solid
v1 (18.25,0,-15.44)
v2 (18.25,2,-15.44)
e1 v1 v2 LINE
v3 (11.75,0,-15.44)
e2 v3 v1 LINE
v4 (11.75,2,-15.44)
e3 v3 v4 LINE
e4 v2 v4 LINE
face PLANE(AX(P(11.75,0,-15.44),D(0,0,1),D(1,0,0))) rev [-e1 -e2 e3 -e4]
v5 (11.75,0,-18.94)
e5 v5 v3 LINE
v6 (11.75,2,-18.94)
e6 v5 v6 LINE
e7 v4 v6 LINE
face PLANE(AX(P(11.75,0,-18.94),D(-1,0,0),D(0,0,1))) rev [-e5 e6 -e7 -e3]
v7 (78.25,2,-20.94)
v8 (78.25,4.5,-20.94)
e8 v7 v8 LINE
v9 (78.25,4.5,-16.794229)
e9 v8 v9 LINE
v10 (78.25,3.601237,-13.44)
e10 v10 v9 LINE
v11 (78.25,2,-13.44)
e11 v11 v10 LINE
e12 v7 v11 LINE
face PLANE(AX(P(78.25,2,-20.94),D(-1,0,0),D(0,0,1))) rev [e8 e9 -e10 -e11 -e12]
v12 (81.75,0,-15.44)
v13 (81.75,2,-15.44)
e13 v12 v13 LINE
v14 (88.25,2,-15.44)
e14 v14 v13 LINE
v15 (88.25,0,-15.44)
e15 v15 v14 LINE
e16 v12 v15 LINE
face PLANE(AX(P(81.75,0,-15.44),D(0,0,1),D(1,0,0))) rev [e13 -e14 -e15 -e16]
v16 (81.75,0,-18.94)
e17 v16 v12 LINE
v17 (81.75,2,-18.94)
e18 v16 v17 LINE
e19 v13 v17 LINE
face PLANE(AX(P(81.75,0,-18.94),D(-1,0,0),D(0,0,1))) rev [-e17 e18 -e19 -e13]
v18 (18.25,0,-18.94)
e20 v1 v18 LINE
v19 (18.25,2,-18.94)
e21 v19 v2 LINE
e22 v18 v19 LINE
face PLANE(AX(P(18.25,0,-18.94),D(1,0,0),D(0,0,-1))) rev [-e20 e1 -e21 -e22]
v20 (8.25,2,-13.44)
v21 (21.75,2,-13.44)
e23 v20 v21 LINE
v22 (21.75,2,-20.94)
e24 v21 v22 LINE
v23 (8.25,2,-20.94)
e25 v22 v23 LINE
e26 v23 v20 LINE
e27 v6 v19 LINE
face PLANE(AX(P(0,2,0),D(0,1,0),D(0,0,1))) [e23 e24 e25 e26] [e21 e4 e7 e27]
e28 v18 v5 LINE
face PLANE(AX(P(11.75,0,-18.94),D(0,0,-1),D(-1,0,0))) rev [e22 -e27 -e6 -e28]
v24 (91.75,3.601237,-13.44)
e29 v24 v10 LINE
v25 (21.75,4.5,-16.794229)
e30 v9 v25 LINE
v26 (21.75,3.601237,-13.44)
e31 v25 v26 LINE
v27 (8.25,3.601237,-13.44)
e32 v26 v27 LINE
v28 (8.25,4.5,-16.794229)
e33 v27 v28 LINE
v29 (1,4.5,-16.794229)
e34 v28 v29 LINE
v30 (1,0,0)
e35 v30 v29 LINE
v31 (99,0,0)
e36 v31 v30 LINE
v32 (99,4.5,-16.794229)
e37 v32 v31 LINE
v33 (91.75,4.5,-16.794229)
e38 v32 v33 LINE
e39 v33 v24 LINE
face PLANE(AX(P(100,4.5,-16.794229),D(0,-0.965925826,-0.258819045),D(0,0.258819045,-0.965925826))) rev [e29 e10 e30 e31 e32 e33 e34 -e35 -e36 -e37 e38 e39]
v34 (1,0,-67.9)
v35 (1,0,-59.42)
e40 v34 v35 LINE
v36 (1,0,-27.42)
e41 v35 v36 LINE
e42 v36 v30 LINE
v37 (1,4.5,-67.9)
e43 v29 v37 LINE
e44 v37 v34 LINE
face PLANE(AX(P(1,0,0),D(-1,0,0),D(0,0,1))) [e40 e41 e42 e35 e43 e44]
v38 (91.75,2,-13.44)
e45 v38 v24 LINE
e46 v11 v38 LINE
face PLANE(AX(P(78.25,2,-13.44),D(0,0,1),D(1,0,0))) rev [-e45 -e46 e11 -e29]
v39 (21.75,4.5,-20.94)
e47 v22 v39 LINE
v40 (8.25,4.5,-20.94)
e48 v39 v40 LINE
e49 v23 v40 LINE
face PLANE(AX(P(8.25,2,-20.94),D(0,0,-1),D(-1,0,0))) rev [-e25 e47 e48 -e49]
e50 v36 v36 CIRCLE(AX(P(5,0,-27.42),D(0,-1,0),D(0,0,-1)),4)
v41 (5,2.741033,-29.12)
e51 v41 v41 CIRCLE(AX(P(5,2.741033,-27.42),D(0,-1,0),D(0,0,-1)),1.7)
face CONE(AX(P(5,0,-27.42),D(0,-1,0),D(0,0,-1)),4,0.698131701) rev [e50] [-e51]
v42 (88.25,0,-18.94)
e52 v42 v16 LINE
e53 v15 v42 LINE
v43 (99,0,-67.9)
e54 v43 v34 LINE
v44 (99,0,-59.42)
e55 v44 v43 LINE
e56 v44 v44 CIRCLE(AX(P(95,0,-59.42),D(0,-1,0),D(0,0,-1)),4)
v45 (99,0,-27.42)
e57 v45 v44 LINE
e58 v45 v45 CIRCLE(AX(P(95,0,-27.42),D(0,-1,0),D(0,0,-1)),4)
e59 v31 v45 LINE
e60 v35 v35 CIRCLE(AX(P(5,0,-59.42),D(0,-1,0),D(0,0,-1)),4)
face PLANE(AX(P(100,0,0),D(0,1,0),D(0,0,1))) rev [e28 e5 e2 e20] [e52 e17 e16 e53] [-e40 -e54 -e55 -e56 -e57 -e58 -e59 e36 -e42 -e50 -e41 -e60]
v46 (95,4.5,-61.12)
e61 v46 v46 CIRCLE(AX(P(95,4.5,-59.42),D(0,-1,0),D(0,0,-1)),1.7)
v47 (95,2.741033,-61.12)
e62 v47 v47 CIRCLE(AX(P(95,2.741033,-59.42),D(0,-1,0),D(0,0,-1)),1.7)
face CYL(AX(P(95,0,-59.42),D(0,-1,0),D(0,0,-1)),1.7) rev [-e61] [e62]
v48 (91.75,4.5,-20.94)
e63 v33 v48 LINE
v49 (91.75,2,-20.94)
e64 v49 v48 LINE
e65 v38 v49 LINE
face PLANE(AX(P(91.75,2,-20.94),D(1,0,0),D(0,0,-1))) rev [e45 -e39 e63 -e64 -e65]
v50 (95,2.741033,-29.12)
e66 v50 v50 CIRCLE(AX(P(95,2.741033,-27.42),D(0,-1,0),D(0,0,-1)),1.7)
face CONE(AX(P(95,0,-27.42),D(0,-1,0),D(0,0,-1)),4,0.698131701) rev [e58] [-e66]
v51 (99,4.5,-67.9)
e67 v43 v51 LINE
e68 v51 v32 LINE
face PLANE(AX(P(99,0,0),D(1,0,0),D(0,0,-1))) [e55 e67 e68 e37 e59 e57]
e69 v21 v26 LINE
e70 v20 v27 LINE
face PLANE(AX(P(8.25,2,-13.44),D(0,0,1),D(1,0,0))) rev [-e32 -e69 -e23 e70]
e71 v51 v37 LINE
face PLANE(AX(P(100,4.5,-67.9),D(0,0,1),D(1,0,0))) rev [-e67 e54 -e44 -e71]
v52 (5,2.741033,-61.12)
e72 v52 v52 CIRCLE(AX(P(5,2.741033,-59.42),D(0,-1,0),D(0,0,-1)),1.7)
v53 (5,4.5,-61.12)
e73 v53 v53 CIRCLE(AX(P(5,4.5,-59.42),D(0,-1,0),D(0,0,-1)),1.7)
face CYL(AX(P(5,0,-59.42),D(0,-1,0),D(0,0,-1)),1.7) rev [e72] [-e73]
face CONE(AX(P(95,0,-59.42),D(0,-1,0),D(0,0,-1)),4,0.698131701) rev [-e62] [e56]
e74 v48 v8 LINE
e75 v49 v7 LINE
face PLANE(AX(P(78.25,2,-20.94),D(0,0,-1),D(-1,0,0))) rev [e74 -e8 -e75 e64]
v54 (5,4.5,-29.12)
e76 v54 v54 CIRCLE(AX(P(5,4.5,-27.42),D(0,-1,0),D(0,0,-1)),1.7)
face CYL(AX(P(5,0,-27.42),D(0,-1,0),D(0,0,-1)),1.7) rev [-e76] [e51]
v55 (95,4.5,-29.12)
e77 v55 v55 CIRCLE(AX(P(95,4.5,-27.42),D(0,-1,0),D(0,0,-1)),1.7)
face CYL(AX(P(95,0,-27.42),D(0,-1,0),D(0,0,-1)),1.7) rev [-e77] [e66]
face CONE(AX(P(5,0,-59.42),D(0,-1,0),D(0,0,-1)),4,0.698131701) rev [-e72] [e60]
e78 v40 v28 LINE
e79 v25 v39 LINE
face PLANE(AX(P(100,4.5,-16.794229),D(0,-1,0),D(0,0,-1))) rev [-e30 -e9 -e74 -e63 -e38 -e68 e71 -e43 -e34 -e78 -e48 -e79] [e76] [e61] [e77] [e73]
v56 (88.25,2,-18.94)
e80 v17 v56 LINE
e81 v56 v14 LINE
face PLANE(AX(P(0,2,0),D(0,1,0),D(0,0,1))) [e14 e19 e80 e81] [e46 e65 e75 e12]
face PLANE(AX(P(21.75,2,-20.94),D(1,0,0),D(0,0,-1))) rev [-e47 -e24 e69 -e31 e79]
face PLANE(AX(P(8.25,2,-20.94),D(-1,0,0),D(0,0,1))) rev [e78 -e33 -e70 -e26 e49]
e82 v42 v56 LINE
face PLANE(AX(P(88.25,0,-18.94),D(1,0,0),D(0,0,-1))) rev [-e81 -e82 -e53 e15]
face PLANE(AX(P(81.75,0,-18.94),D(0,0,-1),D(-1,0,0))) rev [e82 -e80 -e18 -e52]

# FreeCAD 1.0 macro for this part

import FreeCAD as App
import Part
import Sketcher
from FreeCAD import Vector
Q = App.Units.Quantity


def add_polygon(sketch, points):
    """Adds a closed chain of lines whose ends are joined by coincident constraints."""
    first, n = sketch.GeometryCount, len(points)
    for a, b in zip(points, points[1:] + points[:1]):
        sketch.addGeometry(Part.LineSegment(App.Vector(*a, 0), App.Vector(*b, 0)), False)
    for i in range(n):
        sketch.addConstraint(Sketcher.Constraint("Coincident", first + i, 2, first + (i + 1) % n, 1))

doc = App.newDocument("Part")
body = doc.addObject("PartDesign::Body", "Body")

# Sketch on YZ plane
sketch1 = doc.addObject("Sketcher::SketchObject", "Sketch")
body.addObject(sketch1)
sketch1.AttachmentSupport = (doc.YZ_Plane, [""])
sketch1.MapMode = "FlatFace"
add_polygon(sketch1, [(0, 0), (0, -67.9), (4.5, -67.9), (4.5, -16.8)])  # lines 0-3
sketch1.addConstraint(Sketcher.Constraint("Vertical", 0))
sketch1.addConstraint(Sketcher.Constraint("Horizontal", 1))
sketch1.addConstraint(Sketcher.Constraint("Vertical", 2))
sketch1.addConstraint(Sketcher.Constraint("Coincident", 3, 2, -1, 1))
sketch1.addConstraint(Sketcher.Constraint("Angle", 3, Q("105 deg")))
sketch1.addConstraint(Sketcher.Constraint("DistanceX", 1, 1, 1, 2, Q("4.5 mm")))
sketch1.addConstraint(Sketcher.Constraint("DistanceY", 0, 2, 0, 1, Q("67.9 mm")))
pad1 = doc.addObject("PartDesign::Pad", "Pad")
body.addObject(pad1)
pad1.Profile = sketch1
pad1.Length = 100

# Sketch on YZ plane
sketch2 = doc.addObject("Sketcher::SketchObject", "Sketch001")
body.addObject(sketch2)
sketch2.AttachmentSupport = (doc.YZ_Plane, [""])
sketch2.MapMode = "FlatFace"
sketch2.AttachmentOffset = App.Placement(Vector(0, 0, 95), App.Rotation())
add_polygon(sketch2, [(4.5, -59.4), (0, -59.4), (0, -63.4), (2.7, -61.1), (4.5, -61.1)])  # lines 0-4
sketch2.addGeometry(Part.LineSegment(Vector(0, -59.4, 0), Vector(4.5, -59.4, 0)), True)  # axis
sketch2.addConstraint(Sketcher.Constraint("Horizontal", 0))
sketch2.addConstraint(Sketcher.Constraint("Vertical", 1))
sketch2.addConstraint(Sketcher.Constraint("Horizontal", 3))
sketch2.addConstraint(Sketcher.Constraint("Vertical", 4))
sketch2.addConstraint(Sketcher.Constraint("Horizontal", 5))
sketch2.addConstraint(Sketcher.Constraint("Coincident", 5, 1, 0, 2))
sketch2.addConstraint(Sketcher.Constraint("PointOnObject", 0, 2, -2))
sketch2.addConstraint(Sketcher.Constraint("Vertical", 3, 2, 5, 2))
sketch2.addConstraint(Sketcher.Constraint("DistanceY", 1, 2, 1, 1, Q("4 mm")))
sketch2.addConstraint(Sketcher.Constraint("Angle", 2, Q("40 deg")))
sketch2.addConstraint(Sketcher.Constraint("DistanceX", 0, 2, 0, 1, Q("4.5 mm")))
sketch2.addConstraint(Sketcher.Constraint("DistanceY", 4, 1, 4, 2, Q("1.7 mm")))
sketch2.addConstraint(Sketcher.Constraint("DistanceY", 0, 2, -1, 1, Q("59.42 mm")))
groove = doc.addObject("PartDesign::Groove", "Groove")
body.addObject(groove)
groove.Profile = sketch2
groove.ReferenceAxis = (sketch2, ["Axis0"])
groove.Angle = 360
doc.recompute()

linearpattern = doc.addObject("PartDesign::LinearPattern", "LinearPattern")
body.addObject(linearpattern)
linearpattern.Originals = [groove]
linearpattern.Direction = (doc.X_Axis, [""])
linearpattern.Mode = "offset"
linearpattern.Offset = 90
linearpattern.Occurrences = 2
linearpattern.Reversed = True
body.Tip = linearpattern
doc.recompute()

datumline = doc.addObject("PartDesign::Line", "DatumLine")
body.addObject(datumline)
datumline.Placement = App.Placement(Vector(0, 0, 0), App.Rotation(Vector(0, 0, 1), Vector(-0.94221469, 0, 0.335009668)))
linearpattern2 = doc.addObject("PartDesign::LinearPattern", "LinearPattern001")
body.addObject(linearpattern2)
linearpattern2.Originals = [groove]
linearpattern2.Direction = (datumline, [""])
linearpattern2.Mode = "offset"
linearpattern2.Offset = 95.519631
linearpattern2.Occurrences = 2
body.Tip = linearpattern2
doc.recompute()

linearpattern3 = doc.addObject("PartDesign::LinearPattern", "LinearPattern002")
body.addObject(linearpattern3)
linearpattern3.Originals = [groove]
linearpattern3.Direction = (doc.Z_Axis, [""])
linearpattern3.Mode = "offset"
linearpattern3.Offset = 32
linearpattern3.Occurrences = 2
body.Tip = linearpattern3

# Sketch on XZ plane
sketch3 = doc.addObject("Sketcher::SketchObject", "Sketch002")
body.addObject(sketch3)
sketch3.AttachmentSupport = (doc.XZ_Plane, [""])
sketch3.MapMode = "FlatFace"
sketch3.AttachmentOffset = App.Placement(Vector(0, 0, -4.5), App.Rotation())
add_polygon(sketch3, [(11.8, -18.9), (11.8, -15.4), (18.2, -15.4), (18.2, -18.9)])  # lines 0-3
add_polygon(sketch3, [(81.8, -18.9), (81.8, -15.4), (88.2, -15.4), (88.2, -18.9)])  # lines 4-7
sketch3.addConstraint(Sketcher.Constraint("Vertical", 0))
sketch3.addConstraint(Sketcher.Constraint("Horizontal", 1))
sketch3.addConstraint(Sketcher.Constraint("Vertical", 2))
sketch3.addConstraint(Sketcher.Constraint("Horizontal", 3))
sketch3.addConstraint(Sketcher.Constraint("Vertical", 4))
sketch3.addConstraint(Sketcher.Constraint("Horizontal", 5))
sketch3.addConstraint(Sketcher.Constraint("Vertical", 6))
sketch3.addConstraint(Sketcher.Constraint("Horizontal", 7))
sketch3.addConstraint(Sketcher.Constraint("Horizontal", 1, 2, 4, 2))
sketch3.addConstraint(Sketcher.Constraint("Horizontal", 3, 2, 6, 2))
sketch3.addConstraint(Sketcher.Constraint("Equal", 3, 5))
sketch3.addConstraint(Sketcher.Constraint("DistanceX", 1, 1, 1, 2, Q("6.5 mm")))
sketch3.addConstraint(Sketcher.Constraint("DistanceY", 0, 1, 0, 2, Q("3.5 mm")))
sketch3.addConstraint(Sketcher.Constraint("DistanceX", 0, 2, 4, 2, Q("70 mm")))
sketch3.addConstraint(Sketcher.Constraint("DistanceX", -1, 1, 0, 2, Q("11.75 mm")))
sketch3.addConstraint(Sketcher.Constraint("DistanceY", 0, 2, -1, 1, Q("15.44 mm")))
pocket1 = doc.addObject("PartDesign::Pocket", "Pocket")
body.addObject(pocket1)
pocket1.Profile = sketch3
pocket1.Type = "ThroughAll"
pocket1.Reversed = True

# Sketch on XZ plane
sketch4 = doc.addObject("Sketcher::SketchObject", "Sketch003")
body.addObject(sketch4)
sketch4.AttachmentSupport = (doc.XZ_Plane, [""])
sketch4.MapMode = "FlatFace"
sketch4.AttachmentOffset = App.Placement(Vector(0, 0, -4.5), App.Rotation())
add_polygon(sketch4, [(8, -21), (8, -13), (22, -13), (22, -21)])  # lines 0-3
add_polygon(sketch4, [(78, -21), (78, -13), (92, -13), (92, -21)])  # lines 4-7
sketch4.addConstraint(Sketcher.Constraint("Vertical", 0))
sketch4.addConstraint(Sketcher.Constraint("Horizontal", 1))
sketch4.addConstraint(Sketcher.Constraint("Vertical", 2))
sketch4.addConstraint(Sketcher.Constraint("Horizontal", 3))
sketch4.addConstraint(Sketcher.Constraint("Vertical", 4))
sketch4.addConstraint(Sketcher.Constraint("Horizontal", 5))
sketch4.addConstraint(Sketcher.Constraint("Vertical", 6))
sketch4.addConstraint(Sketcher.Constraint("Horizontal", 7))
sketch4.addConstraint(Sketcher.Constraint("Horizontal", 1, 2, 4, 2))
sketch4.addConstraint(Sketcher.Constraint("Horizontal", 3, 2, 6, 2))
sketch4.addConstraint(Sketcher.Constraint("Equal", 3, 5))
sketch4.addConstraint(Sketcher.Constraint("DistanceX", 1, 1, 1, 2, Q("13.5 mm")))
sketch4.addConstraint(Sketcher.Constraint("DistanceY", 0, 1, 0, 2, Q("7.5 mm")))
sketch4.addConstraint(Sketcher.Constraint("DistanceX", 0, 2, 4, 2, Q("70 mm")))
sketch4.addConstraint(Sketcher.Constraint("DistanceX", -1, 1, 0, 2, Q("8.25 mm")))
sketch4.addConstraint(Sketcher.Constraint("DistanceY", 0, 2, -1, 1, Q("13.44 mm")))
pocket2 = doc.addObject("PartDesign::Pocket", "Pocket001")
body.addObject(pocket2)
pocket2.Profile = sketch4
pocket2.Length = 2.5
pocket2.Reversed = True

# Sketch on YZ plane
sketch5 = doc.addObject("Sketcher::SketchObject", "Sketch004")
body.addObject(sketch5)
sketch5.AttachmentSupport = (doc.YZ_Plane, [""])
sketch5.MapMode = "FlatFace"
sketch5.AttachmentOffset = App.Placement(Vector(0, 0, 100), App.Rotation())
add_polygon(sketch5, [(0, 0), (0, -68), (7, -68), (7, 0)])  # lines 0-3
sketch5.addConstraint(Sketcher.Constraint("Vertical", 0))
sketch5.addConstraint(Sketcher.Constraint("Horizontal", 1))
sketch5.addConstraint(Sketcher.Constraint("Vertical", 2))
sketch5.addConstraint(Sketcher.Constraint("Coincident", 3, 2, -1, 1))
sketch5.addConstraint(Sketcher.Constraint("DistanceY", 0, 2, 0, 1, Q("67.9 mm")))
sketch5.addConstraint(Sketcher.Constraint("DistanceX", 1, 1, 1, 2, Q("7.340227 mm")))
sketch5.addConstraint(Sketcher.Constraint("DistanceY", 2, 1, 2, 2, Q("68.355473 mm")))
pocket3 = doc.addObject("PartDesign::Pocket", "Pocket002")
body.addObject(pocket3)
pocket3.Profile = sketch5
pocket3.Length = 1

# Sketch on YZ plane
sketch6 = doc.addObject("Sketcher::SketchObject", "Sketch005")
body.addObject(sketch6)
sketch6.AttachmentSupport = (doc.YZ_Plane, [""])
sketch6.MapMode = "FlatFace"
add_polygon(sketch6, [(9, -68), (0, -68), (0, 0), (9, 0)])  # lines 0-3
sketch6.addConstraint(Sketcher.Constraint("Horizontal", 0))
sketch6.addConstraint(Sketcher.Constraint("Vertical", 1))
sketch6.addConstraint(Sketcher.Constraint("Horizontal", 2))
sketch6.addConstraint(Sketcher.Constraint("Vertical", 3))
sketch6.addConstraint(Sketcher.Constraint("Coincident", 1, 2, -1, 1))
sketch6.addConstraint(Sketcher.Constraint("DistanceY", 1, 1, 1, 2, Q("67.9 mm")))
sketch6.addConstraint(Sketcher.Constraint("DistanceX", 0, 2, 0, 1, Q("8.529185 mm")))
pocket4 = doc.addObject("PartDesign::Pocket", "Pocket003")
body.addObject(pocket4)
pocket4.Profile = sketch6
pocket4.Length = 1
pocket4.Reversed = True

doc.recompute()
